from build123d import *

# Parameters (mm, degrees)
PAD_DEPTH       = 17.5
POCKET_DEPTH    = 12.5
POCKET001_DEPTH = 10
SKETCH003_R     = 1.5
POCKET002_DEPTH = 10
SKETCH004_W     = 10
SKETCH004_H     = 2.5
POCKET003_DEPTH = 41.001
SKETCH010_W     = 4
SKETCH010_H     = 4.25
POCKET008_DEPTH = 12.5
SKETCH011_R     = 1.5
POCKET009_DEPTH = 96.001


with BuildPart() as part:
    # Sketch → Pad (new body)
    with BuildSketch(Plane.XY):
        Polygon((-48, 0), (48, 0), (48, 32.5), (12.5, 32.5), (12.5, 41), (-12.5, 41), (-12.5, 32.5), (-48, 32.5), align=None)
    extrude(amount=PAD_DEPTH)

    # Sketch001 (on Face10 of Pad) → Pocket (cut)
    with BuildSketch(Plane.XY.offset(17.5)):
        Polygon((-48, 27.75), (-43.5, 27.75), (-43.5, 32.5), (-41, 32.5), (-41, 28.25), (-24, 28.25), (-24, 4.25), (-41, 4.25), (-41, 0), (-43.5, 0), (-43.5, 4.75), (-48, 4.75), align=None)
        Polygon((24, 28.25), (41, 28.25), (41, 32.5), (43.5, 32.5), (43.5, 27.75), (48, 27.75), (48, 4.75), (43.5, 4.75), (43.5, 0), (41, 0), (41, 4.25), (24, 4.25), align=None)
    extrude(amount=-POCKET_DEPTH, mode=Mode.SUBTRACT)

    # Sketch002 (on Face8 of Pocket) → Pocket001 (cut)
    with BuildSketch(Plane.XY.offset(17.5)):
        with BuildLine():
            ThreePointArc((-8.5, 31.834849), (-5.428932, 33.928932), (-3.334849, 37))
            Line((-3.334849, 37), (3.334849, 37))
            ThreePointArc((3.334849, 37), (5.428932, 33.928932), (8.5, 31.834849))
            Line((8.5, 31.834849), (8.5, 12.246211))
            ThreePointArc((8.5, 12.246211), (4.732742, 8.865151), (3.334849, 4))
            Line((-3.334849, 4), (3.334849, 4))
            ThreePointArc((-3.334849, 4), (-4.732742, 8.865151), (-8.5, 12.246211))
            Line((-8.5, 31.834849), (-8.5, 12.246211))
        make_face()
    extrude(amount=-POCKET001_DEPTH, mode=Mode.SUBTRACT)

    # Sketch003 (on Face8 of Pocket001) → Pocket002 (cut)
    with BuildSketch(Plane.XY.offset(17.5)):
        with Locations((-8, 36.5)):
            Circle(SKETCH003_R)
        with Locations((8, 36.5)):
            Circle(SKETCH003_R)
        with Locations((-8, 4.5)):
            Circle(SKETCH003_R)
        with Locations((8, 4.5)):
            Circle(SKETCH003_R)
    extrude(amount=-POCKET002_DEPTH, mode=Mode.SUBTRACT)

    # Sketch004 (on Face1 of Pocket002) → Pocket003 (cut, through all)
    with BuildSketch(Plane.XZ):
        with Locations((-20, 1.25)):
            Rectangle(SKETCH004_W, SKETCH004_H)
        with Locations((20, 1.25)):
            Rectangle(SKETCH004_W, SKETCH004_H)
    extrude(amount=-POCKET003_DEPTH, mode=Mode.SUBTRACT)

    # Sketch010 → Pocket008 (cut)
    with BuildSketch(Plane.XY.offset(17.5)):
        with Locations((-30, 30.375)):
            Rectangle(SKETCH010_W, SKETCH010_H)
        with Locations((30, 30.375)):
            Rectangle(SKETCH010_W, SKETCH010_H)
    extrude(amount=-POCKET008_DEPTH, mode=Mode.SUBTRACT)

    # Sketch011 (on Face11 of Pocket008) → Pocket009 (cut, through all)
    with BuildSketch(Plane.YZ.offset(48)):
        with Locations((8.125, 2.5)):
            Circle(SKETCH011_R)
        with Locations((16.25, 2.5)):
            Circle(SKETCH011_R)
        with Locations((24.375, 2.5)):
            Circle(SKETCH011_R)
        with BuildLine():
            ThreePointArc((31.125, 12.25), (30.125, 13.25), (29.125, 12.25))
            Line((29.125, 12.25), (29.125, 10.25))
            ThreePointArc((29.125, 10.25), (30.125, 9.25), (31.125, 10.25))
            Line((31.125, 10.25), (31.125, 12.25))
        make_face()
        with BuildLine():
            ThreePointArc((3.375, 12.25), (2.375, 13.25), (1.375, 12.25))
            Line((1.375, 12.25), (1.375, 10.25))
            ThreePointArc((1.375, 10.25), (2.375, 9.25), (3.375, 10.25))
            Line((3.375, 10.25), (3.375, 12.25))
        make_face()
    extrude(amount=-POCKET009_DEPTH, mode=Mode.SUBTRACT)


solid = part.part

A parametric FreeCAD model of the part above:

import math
import FreeCAD as App
import Part
import Sketcher
from FreeCAD import Vector
Q = App.Units.Quantity

doc = App.newDocument("Part")
body = doc.addObject("PartDesign::Body", "Body")

# Sketch on XY plane
sketch1 = doc.addObject("Sketcher::SketchObject", "Sketch")
body.addObject(sketch1)
sketch1.AttachmentSupport = (doc.XY_Plane, [""])
sketch1.MapMode = "FlatFace"
sketch1.addGeometry(Part.LineSegment(Vector(-48, 0, 0), Vector(48, 0, 0)), False)
sketch1.addGeometry(Part.LineSegment(Vector(48, 0, 0), Vector(48, 32, 0)), False)
sketch1.addGeometry(Part.LineSegment(Vector(48, 32, 0), Vector(12, 32, 0)), False)
sketch1.addGeometry(Part.LineSegment(Vector(12, 32, 0), Vector(12, 41, 0)), False)
sketch1.addGeometry(Part.LineSegment(Vector(12, 41, 0), Vector(-12, 41, 0)), False)
sketch1.addGeometry(Part.LineSegment(Vector(-12, 41, 0), Vector(-12, 32, 0)), False)
sketch1.addGeometry(Part.LineSegment(Vector(-12, 32, 0), Vector(-48, 32, 0)), False)
sketch1.addGeometry(Part.LineSegment(Vector(-48, 32, 0), Vector(-48, 0, 0)), False)
sketch1.addConstraint(Sketcher.Constraint("Coincident", 0, 2, 1, 1))
sketch1.addConstraint(Sketcher.Constraint("Coincident", 1, 2, 2, 1))
sketch1.addConstraint(Sketcher.Constraint("Coincident", 2, 2, 3, 1))
sketch1.addConstraint(Sketcher.Constraint("Coincident", 3, 2, 4, 1))
sketch1.addConstraint(Sketcher.Constraint("Coincident", 4, 2, 5, 1))
sketch1.addConstraint(Sketcher.Constraint("Coincident", 5, 2, 6, 1))
sketch1.addConstraint(Sketcher.Constraint("Coincident", 6, 2, 7, 1))
sketch1.addConstraint(Sketcher.Constraint("Coincident", 7, 2, 0, 1))
sketch1.addConstraint(Sketcher.Constraint("Horizontal", 0))
sketch1.addConstraint(Sketcher.Constraint("Vertical", 1))
sketch1.addConstraint(Sketcher.Constraint("Horizontal", 2))
sketch1.addConstraint(Sketcher.Constraint("Vertical", 3))
sketch1.addConstraint(Sketcher.Constraint("Horizontal", 4))
sketch1.addConstraint(Sketcher.Constraint("Vertical", 5))
sketch1.addConstraint(Sketcher.Constraint("Horizontal", 6))
sketch1.addConstraint(Sketcher.Constraint("Vertical", 7))
sketch1.addConstraint(Sketcher.Constraint("Symmetric", 0, 2, 7, 2, -1, 1))
sketch1.addConstraint(Sketcher.Constraint("Symmetric", 2, 2, 5, 2, -2))
sketch1.addConstraint(Sketcher.Constraint("DistanceX", 0, 1, 0, 2, Q("96 mm")))
sketch1.addConstraint(Sketcher.Constraint("DistanceX", 4, 2, 4, 1, Q("25 mm")))
sketch1.addConstraint(Sketcher.Constraint("DistanceY", 1, 1, 1, 2, Q("32.5 mm")))
sketch1.addConstraint(Sketcher.Constraint("DistanceY", 3, 1, 3, 2, Q("8.5 mm")))
pad1 = doc.addObject("PartDesign::Pad", "Pad")
body.addObject(pad1)
pad1.Profile = sketch1
pad1.Length = 17.5

# Sketch on XY plane
sketch2 = doc.addObject("Sketcher::SketchObject", "Sketch001")
body.addObject(sketch2)
sketch2.AttachmentSupport = (doc.XY_Plane, [""])
sketch2.MapMode = "FlatFace"
sketch2.AttachmentOffset = App.Placement(Vector(0, 0, 17.5), App.Rotation())
sketch2.addGeometry(Part.LineSegment(Vector(-43.5, 27.8, 0), Vector(-48, 27.8, 0)), False)
sketch2.addGeometry(Part.LineSegment(Vector(-48, 27.8, 0), Vector(-48, 4.8, 0)), False)
sketch2.addGeometry(Part.LineSegment(Vector(-48, 4.8, 0), Vector(-43.5, 4.8, 0)), False)
sketch2.addGeometry(Part.LineSegment(Vector(-43.5, 4.8, 0), Vector(-43.5, 0, 0)), False)
sketch2.addGeometry(Part.LineSegment(Vector(-43.5, 0, 0), Vector(-41, 0, 0)), False)
sketch2.addGeometry(Part.LineSegment(Vector(-41, 0, 0), Vector(-41, 4.2, 0)), False)
sketch2.addGeometry(Part.LineSegment(Vector(-41, 4.2, 0), Vector(-24, 4.2, 0)), False)
sketch2.addGeometry(Part.LineSegment(Vector(-24, 4.2, 0), Vector(-24, 28.2, 0)), False)
sketch2.addGeometry(Part.LineSegment(Vector(-24, 28.2, 0), Vector(-41, 28.2, 0)), False)
sketch2.addGeometry(Part.LineSegment(Vector(-41, 28.2, 0), Vector(-41, 32.5, 0)), False)
sketch2.addGeometry(Part.LineSegment(Vector(-41, 32.5, 0), Vector(-43.5, 32.5, 0)), False)
sketch2.addGeometry(Part.LineSegment(Vector(-43.5, 32.5, 0), Vector(-43.5, 27.8, 0)), False)
sketch2.addGeometry(Part.LineSegment(Vector(41, 28.2, 0), Vector(24, 28.2, 0)), False)
sketch2.addGeometry(Part.LineSegment(Vector(24, 28.2, 0), Vector(24, 4.2, 0)), False)
sketch2.addGeometry(Part.LineSegment(Vector(24, 4.2, 0), Vector(41, 4.2, 0)), False)
sketch2.addGeometry(Part.LineSegment(Vector(41, 4.2, 0), Vector(41, 0, 0)), False)
sketch2.addGeometry(Part.LineSegment(Vector(41, 0, 0), Vector(43.5, 0, 0)), False)
sketch2.addGeometry(Part.LineSegment(Vector(43.5, 0, 0), Vector(43.5, 4.8, 0)), False)
sketch2.addGeometry(Part.LineSegment(Vector(43.5, 4.8, 0), Vector(48, 4.8, 0)), False)
sketch2.addGeometry(Part.LineSegment(Vector(48, 4.8, 0), Vector(48, 27.8, 0)), False)
sketch2.addGeometry(Part.LineSegment(Vector(48, 27.8, 0), Vector(43.5, 27.8, 0)), False)
sketch2.addGeometry(Part.LineSegment(Vector(43.5, 27.8, 0), Vector(43.5, 32.5, 0)), False)
sketch2.addGeometry(Part.LineSegment(Vector(43.5, 32.5, 0), Vector(41, 32.5, 0)), False)
sketch2.addGeometry(Part.LineSegment(Vector(41, 32.5, 0), Vector(41, 28.2, 0)), False)
sketch2.addConstraint(Sketcher.Constraint("Coincident", 0, 2, 1, 1))
sketch2.addConstraint(Sketcher.Constraint("Coincident", 1, 2, 2, 1))
sketch2.addConstraint(Sketcher.Constraint("Coincident", 2, 2, 3, 1))
sketch2.addConstraint(Sketcher.Constraint("Coincident", 3, 2, 4, 1))
sketch2.addConstraint(Sketcher.Constraint("Coincident", 4, 2, 5, 1))
sketch2.addConstraint(Sketcher.Constraint("Coincident", 5, 2, 6, 1))
sketch2.addConstraint(Sketcher.Constraint("Coincident", 6, 2, 7, 1))
sketch2.addConstraint(Sketcher.Constraint("Coincident", 7, 2, 8, 1))
sketch2.addConstraint(Sketcher.Constraint("Coincident", 8, 2, 9, 1))
sketch2.addConstraint(Sketcher.Constraint("Coincident", 9, 2, 10, 1))
sketch2.addConstraint(Sketcher.Constraint("Coincident", 10, 2, 11, 1))
sketch2.addConstraint(Sketcher.Constraint("Coincident", 11, 2, 0, 1))
sketch2.addConstraint(Sketcher.Constraint("Coincident", 12, 2, 13, 1))
sketch2.addConstraint(Sketcher.Constraint("Coincident", 13, 2, 14, 1))
sketch2.addConstraint(Sketcher.Constraint("Coincident", 14, 2, 15, 1))
sketch2.addConstraint(Sketcher.Constraint("Coincident", 15, 2, 16, 1))
sketch2.addConstraint(Sketcher.Constraint("Coincident", 16, 2, 17, 1))
sketch2.addConstraint(Sketcher.Constraint("Coincident", 17, 2, 18, 1))
sketch2.addConstraint(Sketcher.Constraint("Coincident", 18, 2, 19, 1))
sketch2.addConstraint(Sketcher.Constraint("Coincident", 19, 2, 20, 1))
sketch2.addConstraint(Sketcher.Constraint("Coincident", 20, 2, 21, 1))
sketch2.addConstraint(Sketcher.Constraint("Coincident", 21, 2, 22, 1))
sketch2.addConstraint(Sketcher.Constraint("Coincident", 22, 2, 23, 1))
sketch2.addConstraint(Sketcher.Constraint("Coincident", 23, 2, 12, 1))
sketch2.addConstraint(Sketcher.Constraint("Horizontal", 0))
sketch2.addConstraint(Sketcher.Constraint("Vertical", 1))
sketch2.addConstraint(Sketcher.Constraint("Horizontal", 2))
sketch2.addConstraint(Sketcher.Constraint("Vertical", 3))
sketch2.addConstraint(Sketcher.Constraint("Horizontal", 4))
sketch2.addConstraint(Sketcher.Constraint("Vertical", 5))
sketch2.addConstraint(Sketcher.Constraint("Horizontal", 6))
sketch2.addConstraint(Sketcher.Constraint("Vertical", 7))
sketch2.addConstraint(Sketcher.Constraint("Horizontal", 8))
sketch2.addConstraint(Sketcher.Constraint("Vertical", 9))
sketch2.addConstraint(Sketcher.Constraint("Horizontal", 10))
sketch2.addConstraint(Sketcher.Constraint("Vertical", 11))
sketch2.addConstraint(Sketcher.Constraint("Horizontal", 12))
sketch2.addConstraint(Sketcher.Constraint("Vertical", 13))
sketch2.addConstraint(Sketcher.Constraint("Horizontal", 14))
sketch2.addConstraint(Sketcher.Constraint("Vertical", 15))
sketch2.addConstraint(Sketcher.Constraint("Horizontal", 16))
sketch2.addConstraint(Sketcher.Constraint("Vertical", 17))
sketch2.addConstraint(Sketcher.Constraint("Horizontal", 18))
sketch2.addConstraint(Sketcher.Constraint("Vertical", 19))
sketch2.addConstraint(Sketcher.Constraint("Horizontal", 20))
sketch2.addConstraint(Sketcher.Constraint("Vertical", 21))
sketch2.addConstraint(Sketcher.Constraint("Horizontal", 22))
sketch2.addConstraint(Sketcher.Constraint("Vertical", 23))
sketch2.addConstraint(Sketcher.Constraint("Symmetric", 4, 2, 15, 2, -1, 1))
sketch2.addConstraint(Sketcher.Constraint("Symmetric", 7, 2, 12, 2, -2))
sketch2.addConstraint(Sketcher.Constraint("Symmetric", 3, 2, 16, 2, -2))
sketch2.addConstraint(Sketcher.Constraint("Symmetric", 1, 2, 18, 2, -2))
sketch2.addConstraint(Sketcher.Constraint("Symmetric", 11, 2, 20, 2, -2))
sketch2.addConstraint(Sketcher.Constraint("Symmetric", 9, 2, 22, 2, -2))
sketch2.addConstraint(Sketcher.Constraint("Horizontal", 6, 2, 13, 2))
sketch2.addConstraint(Sketcher.Constraint("Vertical", 5, 2, 8, 2))
sketch2.addConstraint(Sketcher.Constraint("Vertical", 3, 2, 10, 2))
sketch2.addConstraint(Sketcher.Constraint("Equal", 5, 9))
sketch2.addConstraint(Sketcher.Constraint("Equal", 3, 11))
sketch2.addConstraint(Sketcher.Constraint("DistanceX", 6, 1, 6, 2, Q("17 mm")))
sketch2.addConstraint(Sketcher.Constraint("DistanceY", 1, 2, 1, 1, Q("23 mm")))
sketch2.addConstraint(Sketcher.Constraint("DistanceY", 7, 1, 7, 2, Q("24 mm")))
sketch2.addConstraint(Sketcher.Constraint("DistanceX", 0, 2, 0, 1, Q("4.5 mm")))
sketch2.addConstraint(Sketcher.Constraint("DistanceX", 4, 1, 4, 2, Q("2.5 mm")))
sketch2.addConstraint(Sketcher.Constraint("DistanceX", 0, 2, -1, 1, Q("48 mm")))
sketch2.addConstraint(Sketcher.Constraint("DistanceY", 3, 2, 3, 1, Q("4.75 mm")))
pocket1 = doc.addObject("PartDesign::Pocket", "Pocket")
body.addObject(pocket1)
pocket1.Profile = sketch2
pocket1.Length = 12.5

# Sketch on XY plane
sketch3 = doc.addObject("Sketcher::SketchObject", "Sketch002")
body.addObject(sketch3)
sketch3.AttachmentSupport = (doc.XY_Plane, [""])
sketch3.MapMode = "FlatFace"
sketch3.AttachmentOffset = App.Placement(Vector(0, 0, 17.5), App.Rotation())
sketch3.addGeometry(Part.ArcOfCircle(Part.Circle(Vector(-12, 41, 0), Vector(0, 0, 1), 10), math.radians(-66), math.radians(-24)), False)
sketch3.addGeometry(Part.LineSegment(Vector(-8, 32, 0), Vector(-8, 12, 0)), False)
sketch3.addGeometry(Part.ArcOfCircle(Part.Circle(Vector(-13, 4, 0), Vector(0, 0, 1), 9), math.radians(0), math.radians(64)), False)
sketch3.addGeometry(Part.LineSegment(Vector(-3, 4, 0), Vector(3, 4, 0)), False)
sketch3.addGeometry(Part.ArcOfCircle(Part.Circle(Vector(13, 4, 0), Vector(0, 0, 1), 9), math.radians(116), math.radians(180)), False)
sketch3.addGeometry(Part.LineSegment(Vector(8, 12, 0), Vector(8, 32, 0)), False)
sketch3.addGeometry(Part.ArcOfCircle(Part.Circle(Vector(12, 41, 0), Vector(0, 0, 1), 10), math.radians(-156), math.radians(-114)), False)
sketch3.addGeometry(Part.LineSegment(Vector(3, 37, 0), Vector(-3, 37, 0)), False)
sketch3.addConstraint(Sketcher.Constraint("Coincident", 0, 1, 1, 1))
sketch3.addConstraint(Sketcher.Constraint("Coincident", 1, 2, 2, 2))
sketch3.addConstraint(Sketcher.Constraint("Coincident", 2, 1, 3, 1))
sketch3.addConstraint(Sketcher.Constraint("Coincident", 3, 2, 4, 2))
sketch3.addConstraint(Sketcher.Constraint("Coincident", 4, 1, 5, 1))
sketch3.addConstraint(Sketcher.Constraint("Coincident", 5, 2, 6, 2))
sketch3.addConstraint(Sketcher.Constraint("Coincident", 6, 1, 7, 1))
sketch3.addConstraint(Sketcher.Constraint("Coincident", 7, 2, 0, 2))
sketch3.addConstraint(Sketcher.Constraint("Vertical", 1))
sketch3.addConstraint(Sketcher.Constraint("Horizontal", 3))
sketch3.addConstraint(Sketcher.Constraint("Vertical", 5))
sketch3.addConstraint(Sketcher.Constraint("Horizontal", 7))
sketch3.addConstraint(Sketcher.Constraint("Equal", 2, 4))
sketch3.addConstraint(Sketcher.Constraint("Equal", 0, 6))
sketch3.addConstraint(Sketcher.Constraint("Symmetric", 2, 3, 4, 3, -2))
sketch3.addConstraint(Sketcher.Constraint("Symmetric", 0, 3, 6, 3, -2))
sketch3.addConstraint(Sketcher.Constraint("Horizontal", 4, 3, 2, 1))
sketch3.addConstraint(Sketcher.Constraint("Horizontal", 1, 2, 4, 1))
sketch3.addConstraint(Sketcher.Constraint("Vertical", 3, 2, 6, 1))
sketch3.addConstraint(Sketcher.Constraint("DistanceY", -1, 1, 2, 3, Q("4 mm")))
sketch3.addConstraint(Sketcher.Constraint("DistanceY", -1, 1, 6, 1, Q("37 mm")))
sketch3.addConstraint(Sketcher.Constraint("DistanceX", 2, 3, 0, 1, Q("4.000001 mm")))
sketch3.addConstraint(Sketcher.Constraint("DistanceX", 0, 1, 4, 3, Q("21.000001 mm")))
sketch3.addConstraint(Sketcher.Constraint("Radius", 0, Q("9.999991 mm")))
sketch3.addConstraint(Sketcher.Constraint("DistanceX", 3, 1, 3, 2, Q("6.669698 mm")))
sketch3.addConstraint(Sketcher.Constraint("DistanceY", 1, 2, 1, 1, Q("19.588638 mm")))
pocket2 = doc.addObject("PartDesign::Pocket", "Pocket001")
body.addObject(pocket2)
pocket2.Profile = sketch3
pocket2.Length = 10

# Sketch on XY plane
sketch4 = doc.addObject("Sketcher::SketchObject", "Sketch003")
body.addObject(sketch4)
sketch4.AttachmentSupport = (doc.XY_Plane, [""])
sketch4.MapMode = "FlatFace"
sketch4.AttachmentOffset = App.Placement(Vector(0, 0, 17.5), App.Rotation())
sketch4.addGeometry(Part.Circle(Vector(-8, 36.5, 0), Vector(0, 0, 1), 1.5), False)
sketch4.addGeometry(Part.Circle(Vector(8, 36.5, 0), Vector(0, 0, 1), 1.5), False)
sketch4.addGeometry(Part.Circle(Vector(-8, 4.5, 0), Vector(0, 0, 1), 1.5), False)
sketch4.addGeometry(Part.Circle(Vector(8, 4.5, 0), Vector(0, 0, 1), 1.5), False)
sketch4.addConstraint(Sketcher.Constraint("Equal", 0, 1))
sketch4.addConstraint(Sketcher.Constraint("Equal", 1, 2))
sketch4.addConstraint(Sketcher.Constraint("Equal", 2, 3))
sketch4.addConstraint(Sketcher.Constraint("Symmetric", 0, 3, 1, 3, -2))
sketch4.addConstraint(Sketcher.Constraint("Symmetric", 2, 3, 3, 3, -2))
sketch4.addConstraint(Sketcher.Constraint("Vertical", 0, 3, 2, 3))
sketch4.addConstraint(Sketcher.Constraint("Diameter", 0, Q("3 mm")))
sketch4.addConstraint(Sketcher.Constraint("DistanceX", 0, 3, -1, 1, Q("8 mm")))
sketch4.addConstraint(Sketcher.Constraint("DistanceY", 2, 3, 0, 3, Q("32 mm")))
sketch4.addConstraint(Sketcher.Constraint("DistanceY", -1, 1, 0, 3, Q("36.5 mm")))
pocket3 = doc.addObject("PartDesign::Pocket", "Pocket002")
body.addObject(pocket3)
pocket3.Profile = sketch4
pocket3.Length = 10

# Sketch on XZ plane
sketch5 = doc.addObject("Sketcher::SketchObject", "Sketch004")
body.addObject(sketch5)
sketch5.AttachmentSupport = (doc.XZ_Plane, [""])
sketch5.MapMode = "FlatFace"
sketch5.addGeometry(Part.LineSegment(Vector(-25, 2.5, 0), Vector(-25, 0, 0)), False)
sketch5.addGeometry(Part.LineSegment(Vector(-25, 0, 0), Vector(-15, 0, 0)), False)
sketch5.addGeometry(Part.LineSegment(Vector(-15, 0, 0), Vector(-15, 2.5, 0)), False)
sketch5.addGeometry(Part.LineSegment(Vector(-15, 2.5, 0), Vector(-25, 2.5, 0)), False)
sketch5.addGeometry(Part.LineSegment(Vector(15, 2.5, 0), Vector(15, 0, 0)), False)
sketch5.addGeometry(Part.LineSegment(Vector(15, 0, 0), Vector(25, 0, 0)), False)
sketch5.addGeometry(Part.LineSegment(Vector(25, 0, 0), Vector(25, 2.5, 0)), False)
sketch5.addGeometry(Part.LineSegment(Vector(25, 2.5, 0), Vector(15, 2.5, 0)), False)
sketch5.addConstraint(Sketcher.Constraint("Coincident", 0, 2, 1, 1))
sketch5.addConstraint(Sketcher.Constraint("Coincident", 1, 2, 2, 1))
sketch5.addConstraint(Sketcher.Constraint("Coincident", 2, 2, 3, 1))
sketch5.addConstraint(Sketcher.Constraint("Coincident", 3, 2, 0, 1))
sketch5.addConstraint(Sketcher.Constraint("Coincident", 4, 2, 5, 1))
sketch5.addConstraint(Sketcher.Constraint("Coincident", 5, 2, 6, 1))
sketch5.addConstraint(Sketcher.Constraint("Coincident", 6, 2, 7, 1))
sketch5.addConstraint(Sketcher.Constraint("Coincident", 7, 2, 4, 1))
sketch5.addConstraint(Sketcher.Constraint("Vertical", 0))
sketch5.addConstraint(Sketcher.Constraint("Horizontal", 1))
sketch5.addConstraint(Sketcher.Constraint("Vertical", 2))
sketch5.addConstraint(Sketcher.Constraint("Horizontal", 3))
sketch5.addConstraint(Sketcher.Constraint("Vertical", 4))
sketch5.addConstraint(Sketcher.Constraint("Horizontal", 5))
sketch5.addConstraint(Sketcher.Constraint("Vertical", 6))
sketch5.addConstraint(Sketcher.Constraint("Horizontal", 7))
sketch5.addConstraint(Sketcher.Constraint("Symmetric", 1, 2, 4, 2, -1, 1))
sketch5.addConstraint(Sketcher.Constraint("Symmetric", 0, 2, 5, 2, -2))
sketch5.addConstraint(Sketcher.Constraint("Horizontal", 3, 2, 6, 2))
sketch5.addConstraint(Sketcher.Constraint("DistanceX", 1, 1, 1, 2, Q("10 mm")))
sketch5.addConstraint(Sketcher.Constraint("DistanceY", 0, 2, 0, 1, Q("2.5 mm")))
sketch5.addConstraint(Sketcher.Constraint("DistanceX", 0, 2, -1, 1, Q("25 mm")))
pocket4 = doc.addObject("PartDesign::Pocket", "Pocket003")
body.addObject(pocket4)
pocket4.Profile = sketch5
pocket4.Type = "ThroughAll"

# Sketch on XY plane
sketch6 = doc.addObject("Sketcher::SketchObject", "Sketch005")
body.addObject(sketch6)
sketch6.AttachmentSupport = (doc.XY_Plane, [""])
sketch6.MapMode = "FlatFace"
sketch6.AttachmentOffset = App.Placement(Vector(0, 0, 17.5), App.Rotation())
sketch6.addGeometry(Part.LineSegment(Vector(-32, 32.5, 0), Vector(-32, 28.2, 0)), False)
sketch6.addGeometry(Part.LineSegment(Vector(-32, 28.2, 0), Vector(-28, 28.2, 0)), False)
sketch6.addGeometry(Part.LineSegment(Vector(-28, 28.2, 0), Vector(-28, 32.5, 0)), False)
sketch6.addGeometry(Part.LineSegment(Vector(-28, 32.5, 0), Vector(-32, 32.5, 0)), False)
sketch6.addGeometry(Part.LineSegment(Vector(28, 32.5, 0), Vector(28, 28.2, 0)), False)
sketch6.addGeometry(Part.LineSegment(Vector(28, 28.2, 0), Vector(32, 28.2, 0)), False)
sketch6.addGeometry(Part.LineSegment(Vector(32, 28.2, 0), Vector(32, 32.5, 0)), False)
sketch6.addGeometry(Part.LineSegment(Vector(32, 32.5, 0), Vector(28, 32.5, 0)), False)
sketch6.addConstraint(Sketcher.Constraint("Coincident", 0, 2, 1, 1))
sketch6.addConstraint(Sketcher.Constraint("Coincident", 1, 2, 2, 1))
sketch6.addConstraint(Sketcher.Constraint("Coincident", 2, 2, 3, 1))
sketch6.addConstraint(Sketcher.Constraint("Coincident", 3, 2, 0, 1))
sketch6.addConstraint(Sketcher.Constraint("Coincident", 4, 2, 5, 1))
sketch6.addConstraint(Sketcher.Constraint("Coincident", 5, 2, 6, 1))
sketch6.addConstraint(Sketcher.Constraint("Coincident", 6, 2, 7, 1))
sketch6.addConstraint(Sketcher.Constraint("Coincident", 7, 2, 4, 1))
sketch6.addConstraint(Sketcher.Constraint("Vertical", 0))
sketch6.addConstraint(Sketcher.Constraint("Horizontal", 1))
sketch6.addConstraint(Sketcher.Constraint("Vertical", 2))
sketch6.addConstraint(Sketcher.Constraint("Horizontal", 3))
sketch6.addConstraint(Sketcher.Constraint("Vertical", 4))
sketch6.addConstraint(Sketcher.Constraint("Horizontal", 5))
sketch6.addConstraint(Sketcher.Constraint("Vertical", 6))
sketch6.addConstraint(Sketcher.Constraint("Horizontal", 7))
sketch6.addConstraint(Sketcher.Constraint("Symmetric", 1, 2, 4, 2, -2))
sketch6.addConstraint(Sketcher.Constraint("Symmetric", 3, 2, 6, 2, -2))
sketch6.addConstraint(Sketcher.Constraint("DistanceX", 1, 1, 1, 2, Q("4 mm")))
sketch6.addConstraint(Sketcher.Constraint("DistanceX", 0, 2, -1, 1, Q("32 mm")))
sketch6.addConstraint(Sketcher.Constraint("DistanceY", 0, 2, 0, 1, Q("4.25 mm")))
sketch6.addConstraint(Sketcher.Constraint("DistanceY", -1, 1, 2, 2, Q("32.5 mm")))
pocket5 = doc.addObject("PartDesign::Pocket", "Pocket004")
body.addObject(pocket5)
pocket5.Profile = sketch6
pocket5.Length = 12.5

# Sketch on YZ plane
sketch7 = doc.addObject("Sketcher::SketchObject", "Sketch006")
body.addObject(sketch7)
sketch7.AttachmentSupport = (doc.YZ_Plane, [""])
sketch7.MapMode = "FlatFace"
sketch7.AttachmentOffset = App.Placement(Vector(0, 0, 48), App.Rotation())
sketch7.addGeometry(Part.Circle(Vector(8.1, 2.5, 0), Vector(0, 0, 1), 1.5), False)
sketch7.addGeometry(Part.Circle(Vector(16.2, 2.5, 0), Vector(0, 0, 1), 1.5), False)
sketch7.addGeometry(Part.Circle(Vector(24.4, 2.5, 0), Vector(0, 0, 1), 1.5), False)
sketch7.addGeometry(Part.ArcOfCircle(Part.Circle(Vector(30.1, 12.2, 0), Vector(0, 0, 1), 1), math.radians(0), math.radians(180)), False)
sketch7.addGeometry(Part.LineSegment(Vector(29.1, 12.2, 0), Vector(29.1, 10.2, 0)), False)
sketch7.addGeometry(Part.ArcOfCircle(Part.Circle(Vector(30.1, 10.2, 0), Vector(0, 0, 1), 1), math.radians(180), math.radians(360)), False)
sketch7.addGeometry(Part.LineSegment(Vector(31.1, 10.2, 0), Vector(31.1, 12.2, 0)), False)
sketch7.addGeometry(Part.ArcOfCircle(Part.Circle(Vector(2.4, 12.2, 0), Vector(0, 0, 1), 1), math.radians(0), math.radians(180)), False)
sketch7.addGeometry(Part.LineSegment(Vector(1.4, 12.2, 0), Vector(1.4, 10.2, 0)), False)
sketch7.addGeometry(Part.ArcOfCircle(Part.Circle(Vector(2.4, 10.2, 0), Vector(0, 0, 1), 1), math.radians(180), math.radians(360)), False)
sketch7.addGeometry(Part.LineSegment(Vector(3.4, 10.2, 0), Vector(3.4, 12.2, 0)), False)
sketch7.addConstraint(Sketcher.Constraint("Tangent", 3, 2, 4, 1))
sketch7.addConstraint(Sketcher.Constraint("Tangent", 4, 2, 5, 1))
sketch7.addConstraint(Sketcher.Constraint("Tangent", 5, 2, 6, 1))
sketch7.addConstraint(Sketcher.Constraint("Tangent", 6, 2, 3, 1))
sketch7.addConstraint(Sketcher.Constraint("Tangent", 7, 2, 8, 1))
sketch7.addConstraint(Sketcher.Constraint("Tangent", 8, 2, 9, 1))
sketch7.addConstraint(Sketcher.Constraint("Tangent", 9, 2, 10, 1))
sketch7.addConstraint(Sketcher.Constraint("Tangent", 10, 2, 7, 1))
sketch7.addConstraint(Sketcher.Constraint("Vertical", 4))
sketch7.addConstraint(Sketcher.Constraint("Vertical", 6))
sketch7.addConstraint(Sketcher.Constraint("Vertical", 8))
sketch7.addConstraint(Sketcher.Constraint("Vertical", 10))
sketch7.addConstraint(Sketcher.Constraint("Equal", 0, 1))
sketch7.addConstraint(Sketcher.Constraint("Equal", 1, 2))
sketch7.addConstraint(Sketcher.Constraint("Equal", 5, 7))
sketch7.addConstraint(Sketcher.Constraint("Horizontal", 0, 3, 1, 3))
sketch7.addConstraint(Sketcher.Constraint("Horizontal", 1, 3, 2, 3))
sketch7.addConstraint(Sketcher.Constraint("Horizontal", 3, 3, 7, 3))
sketch7.addConstraint(Sketcher.Constraint("Horizontal", 5, 3, 9, 3))
sketch7.addConstraint(Sketcher.Constraint("Diameter", 0, Q("3 mm")))
sketch7.addConstraint(Sketcher.Constraint("Radius", 3, Q("1 mm")))
sketch7.addConstraint(Sketcher.Constraint("DistanceY", 4, 2, 4, 1, Q("2 mm")))
sketch7.addConstraint(Sketcher.Constraint("DistanceX", 0, 3, 3, 3, Q("22 mm")))
sketch7.addConstraint(Sketcher.Constraint("DistanceX", 7, 3, 2, 3, Q("22 mm")))
sketch7.addConstraint(Sketcher.Constraint("DistanceY", -1, 1, 0, 3, Q("2.5 mm")))
sketch7.addConstraint(Sketcher.Constraint("DistanceX", -1, 1, 1, 3, Q("16.25 mm")))
sketch7.addConstraint(Sketcher.Constraint("DistanceY", -1, 1, 3, 3, Q("12.25 mm")))
sketch7.addConstraint(Sketcher.Constraint("DistanceX", 0, 3, 2, 3, Q("16.25 mm")))
sketch7.addConstraint(Sketcher.Constraint("DistanceX", -1, 1, 0, 3, Q("8.125 mm")))
pocket6 = doc.addObject("PartDesign::Pocket", "Pocket005")
body.addObject(pocket6)
pocket6.Profile = sketch7
pocket6.Type = "ThroughAll"

doc.recompute()
